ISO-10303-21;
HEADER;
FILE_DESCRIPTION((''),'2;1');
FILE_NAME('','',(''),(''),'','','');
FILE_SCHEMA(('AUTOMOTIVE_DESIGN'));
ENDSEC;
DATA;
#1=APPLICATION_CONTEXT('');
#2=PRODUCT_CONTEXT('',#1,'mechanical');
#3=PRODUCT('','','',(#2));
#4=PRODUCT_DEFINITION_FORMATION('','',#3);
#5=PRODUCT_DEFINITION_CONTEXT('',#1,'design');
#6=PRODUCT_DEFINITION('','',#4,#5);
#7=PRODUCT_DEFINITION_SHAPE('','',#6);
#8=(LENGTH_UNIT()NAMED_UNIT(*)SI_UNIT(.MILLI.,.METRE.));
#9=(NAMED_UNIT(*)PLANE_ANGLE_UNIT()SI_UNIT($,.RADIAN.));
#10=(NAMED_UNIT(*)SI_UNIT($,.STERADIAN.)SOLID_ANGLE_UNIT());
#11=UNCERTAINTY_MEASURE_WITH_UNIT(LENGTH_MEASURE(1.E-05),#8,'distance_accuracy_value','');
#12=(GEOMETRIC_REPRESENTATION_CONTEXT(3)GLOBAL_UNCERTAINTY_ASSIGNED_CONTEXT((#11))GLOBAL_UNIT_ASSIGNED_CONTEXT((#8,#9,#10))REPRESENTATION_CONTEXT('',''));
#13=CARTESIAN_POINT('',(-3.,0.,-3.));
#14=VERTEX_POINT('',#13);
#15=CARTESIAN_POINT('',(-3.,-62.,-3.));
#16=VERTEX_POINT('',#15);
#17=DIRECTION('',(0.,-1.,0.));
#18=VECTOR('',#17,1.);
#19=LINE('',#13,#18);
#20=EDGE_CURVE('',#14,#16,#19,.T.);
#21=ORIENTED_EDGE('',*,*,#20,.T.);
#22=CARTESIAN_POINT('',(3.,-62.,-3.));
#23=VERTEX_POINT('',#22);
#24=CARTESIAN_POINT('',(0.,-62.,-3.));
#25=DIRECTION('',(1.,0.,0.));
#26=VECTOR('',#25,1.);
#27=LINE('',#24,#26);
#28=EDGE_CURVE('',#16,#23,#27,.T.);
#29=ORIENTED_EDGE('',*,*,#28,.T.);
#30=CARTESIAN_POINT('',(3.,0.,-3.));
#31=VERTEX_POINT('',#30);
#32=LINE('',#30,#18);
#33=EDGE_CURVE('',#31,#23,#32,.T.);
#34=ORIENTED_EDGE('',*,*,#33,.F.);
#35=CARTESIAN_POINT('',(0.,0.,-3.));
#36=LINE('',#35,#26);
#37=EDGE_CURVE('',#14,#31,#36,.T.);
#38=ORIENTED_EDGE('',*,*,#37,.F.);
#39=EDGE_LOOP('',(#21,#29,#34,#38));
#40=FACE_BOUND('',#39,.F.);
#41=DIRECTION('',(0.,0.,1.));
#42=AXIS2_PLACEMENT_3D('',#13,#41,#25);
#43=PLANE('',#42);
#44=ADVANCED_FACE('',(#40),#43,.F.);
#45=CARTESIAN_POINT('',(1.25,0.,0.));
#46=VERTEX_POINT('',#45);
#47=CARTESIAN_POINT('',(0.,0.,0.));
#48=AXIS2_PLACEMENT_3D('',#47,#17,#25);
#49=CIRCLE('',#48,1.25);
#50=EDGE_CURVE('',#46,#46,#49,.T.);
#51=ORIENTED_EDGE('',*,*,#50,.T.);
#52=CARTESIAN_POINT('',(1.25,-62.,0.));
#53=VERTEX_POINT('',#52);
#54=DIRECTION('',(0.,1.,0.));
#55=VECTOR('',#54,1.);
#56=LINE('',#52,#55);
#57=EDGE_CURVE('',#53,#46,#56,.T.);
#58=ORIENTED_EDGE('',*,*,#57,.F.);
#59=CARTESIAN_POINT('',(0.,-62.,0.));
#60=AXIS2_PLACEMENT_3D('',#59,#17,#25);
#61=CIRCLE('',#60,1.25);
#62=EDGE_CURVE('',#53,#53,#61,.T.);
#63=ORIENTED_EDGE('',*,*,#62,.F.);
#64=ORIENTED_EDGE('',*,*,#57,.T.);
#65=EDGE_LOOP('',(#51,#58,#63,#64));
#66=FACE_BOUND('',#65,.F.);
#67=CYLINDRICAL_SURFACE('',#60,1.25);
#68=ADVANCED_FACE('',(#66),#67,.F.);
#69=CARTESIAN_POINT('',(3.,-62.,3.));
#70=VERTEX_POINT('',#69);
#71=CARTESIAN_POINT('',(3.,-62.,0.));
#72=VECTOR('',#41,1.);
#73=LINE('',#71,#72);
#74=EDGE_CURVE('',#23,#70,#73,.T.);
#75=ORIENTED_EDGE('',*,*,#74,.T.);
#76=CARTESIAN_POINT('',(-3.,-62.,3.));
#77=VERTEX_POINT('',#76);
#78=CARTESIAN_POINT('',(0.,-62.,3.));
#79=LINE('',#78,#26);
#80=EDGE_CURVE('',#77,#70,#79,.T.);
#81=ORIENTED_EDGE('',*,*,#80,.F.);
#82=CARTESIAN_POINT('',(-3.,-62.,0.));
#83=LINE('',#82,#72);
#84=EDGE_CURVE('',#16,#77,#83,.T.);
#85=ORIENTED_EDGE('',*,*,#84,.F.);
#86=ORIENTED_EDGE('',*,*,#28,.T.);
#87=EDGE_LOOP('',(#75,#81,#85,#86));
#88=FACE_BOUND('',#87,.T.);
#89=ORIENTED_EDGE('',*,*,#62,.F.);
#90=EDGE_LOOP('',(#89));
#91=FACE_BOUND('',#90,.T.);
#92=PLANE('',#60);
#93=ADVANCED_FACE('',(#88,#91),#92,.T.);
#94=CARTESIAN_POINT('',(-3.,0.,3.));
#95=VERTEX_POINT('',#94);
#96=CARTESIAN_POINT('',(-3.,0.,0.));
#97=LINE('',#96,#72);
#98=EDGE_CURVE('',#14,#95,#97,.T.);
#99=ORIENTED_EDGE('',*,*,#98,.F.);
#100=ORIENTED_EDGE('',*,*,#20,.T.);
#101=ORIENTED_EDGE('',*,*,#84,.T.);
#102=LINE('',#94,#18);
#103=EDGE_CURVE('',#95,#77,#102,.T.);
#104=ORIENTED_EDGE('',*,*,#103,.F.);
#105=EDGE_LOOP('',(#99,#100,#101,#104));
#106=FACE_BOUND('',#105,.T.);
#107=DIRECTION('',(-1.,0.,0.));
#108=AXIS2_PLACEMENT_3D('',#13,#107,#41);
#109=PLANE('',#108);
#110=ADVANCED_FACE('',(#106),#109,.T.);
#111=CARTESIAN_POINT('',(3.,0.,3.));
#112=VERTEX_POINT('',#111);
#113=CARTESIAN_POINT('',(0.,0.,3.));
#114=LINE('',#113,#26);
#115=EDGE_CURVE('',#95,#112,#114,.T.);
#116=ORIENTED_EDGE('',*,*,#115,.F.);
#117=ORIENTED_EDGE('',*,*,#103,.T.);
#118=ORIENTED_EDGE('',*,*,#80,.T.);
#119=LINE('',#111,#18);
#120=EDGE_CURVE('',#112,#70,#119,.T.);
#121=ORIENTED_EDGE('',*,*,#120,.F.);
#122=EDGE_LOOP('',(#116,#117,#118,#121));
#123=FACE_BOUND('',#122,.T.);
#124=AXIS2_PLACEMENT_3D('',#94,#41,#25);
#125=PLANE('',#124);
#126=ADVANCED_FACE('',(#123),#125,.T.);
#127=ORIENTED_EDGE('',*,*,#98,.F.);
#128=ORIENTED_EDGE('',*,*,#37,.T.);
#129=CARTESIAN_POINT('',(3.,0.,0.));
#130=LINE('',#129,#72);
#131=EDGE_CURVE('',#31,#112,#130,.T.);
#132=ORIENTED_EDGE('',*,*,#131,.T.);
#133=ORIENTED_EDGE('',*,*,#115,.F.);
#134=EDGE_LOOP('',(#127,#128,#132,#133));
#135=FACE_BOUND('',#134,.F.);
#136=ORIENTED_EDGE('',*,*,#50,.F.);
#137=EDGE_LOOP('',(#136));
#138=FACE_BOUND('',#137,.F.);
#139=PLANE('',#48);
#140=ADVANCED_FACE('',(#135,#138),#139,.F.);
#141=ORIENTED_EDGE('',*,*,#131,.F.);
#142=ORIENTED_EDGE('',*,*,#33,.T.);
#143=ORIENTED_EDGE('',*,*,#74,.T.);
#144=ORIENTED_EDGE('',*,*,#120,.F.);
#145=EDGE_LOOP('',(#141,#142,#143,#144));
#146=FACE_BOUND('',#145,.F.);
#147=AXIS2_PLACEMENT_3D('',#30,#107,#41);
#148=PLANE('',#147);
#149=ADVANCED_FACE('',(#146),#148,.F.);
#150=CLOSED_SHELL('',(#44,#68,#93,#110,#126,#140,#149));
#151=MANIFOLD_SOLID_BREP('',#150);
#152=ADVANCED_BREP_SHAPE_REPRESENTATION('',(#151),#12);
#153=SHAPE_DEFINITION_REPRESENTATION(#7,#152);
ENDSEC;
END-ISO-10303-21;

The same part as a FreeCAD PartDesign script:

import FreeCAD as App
import Part
import Sketcher
from FreeCAD import Vector
Q = App.Units.Quantity

doc = App.newDocument("Part")
body = doc.addObject("PartDesign::Body", "Body")

sketch1 = body.newObject("Sketcher::SketchObject", "Sketch")
sketch1.AttachmentSupport = (doc.getObject("XZ_Plane"), [""])
sketch1.MapMode = "FlatFace"
sketch1.addGeometry([
    Part.LineSegment(Vector(-3, 3, 0), Vector(-3, -3, 0)),
    Part.LineSegment(Vector(-3, -3, 0), Vector(3, -3, 0)),
    Part.LineSegment(Vector(3, -3, 0), Vector(3, 3, 0)),
    Part.LineSegment(Vector(3, 3, 0), Vector(-3, 3, 0)),
], False)
sketch1.addConstraint([
    Sketcher.Constraint("Coincident", 0, 2, 1, 1),
    Sketcher.Constraint("Coincident", 1, 2, 2, 1),
    Sketcher.Constraint("Coincident", 2, 2, 3, 1),
    Sketcher.Constraint("Coincident", 3, 2, 0, 1),
    Sketcher.Constraint("Vertical", 0),
    Sketcher.Constraint("Horizontal", 1),
    Sketcher.Constraint("Vertical", 2),
    Sketcher.Constraint("Horizontal", 3),
    Sketcher.Constraint("Symmetric", 0, 2, 2, 2, -1, 1),
    Sketcher.Constraint("Equal", 3, 0),
    Sketcher.Constraint("DistanceX", 1, 1, 1, 2, Q("6 mm")),
])
pad1 = body.newObject("PartDesign::Pad", "Pad")
pad1.Profile = sketch1
pad1.Length = 62

sketch2 = body.newObject("Sketcher::SketchObject", "Sketch001")
sketch2.AttachmentSupport = (doc.getObject("XZ_Plane"), [""])
sketch2.MapMode = "FlatFace"
sketch2.AttachmentOffset = App.Placement(Vector(0, 0, 62), App.Rotation())
sketch2.addGeometry(Part.Circle(Vector(0, 0, 0), Vector(0, 0, 1), 1.25), False)
sketch2.addConstraint([
    Sketcher.Constraint("Coincident", 0, 3, -1, 1),
    Sketcher.Constraint("Diameter", 0, Q("2.5 mm")),
])
pocket1 = body.newObject("PartDesign::Pocket", "Pocket")
pocket1.Profile = sketch2
pocket1.Type = "ThroughAll"

doc.recompute()
